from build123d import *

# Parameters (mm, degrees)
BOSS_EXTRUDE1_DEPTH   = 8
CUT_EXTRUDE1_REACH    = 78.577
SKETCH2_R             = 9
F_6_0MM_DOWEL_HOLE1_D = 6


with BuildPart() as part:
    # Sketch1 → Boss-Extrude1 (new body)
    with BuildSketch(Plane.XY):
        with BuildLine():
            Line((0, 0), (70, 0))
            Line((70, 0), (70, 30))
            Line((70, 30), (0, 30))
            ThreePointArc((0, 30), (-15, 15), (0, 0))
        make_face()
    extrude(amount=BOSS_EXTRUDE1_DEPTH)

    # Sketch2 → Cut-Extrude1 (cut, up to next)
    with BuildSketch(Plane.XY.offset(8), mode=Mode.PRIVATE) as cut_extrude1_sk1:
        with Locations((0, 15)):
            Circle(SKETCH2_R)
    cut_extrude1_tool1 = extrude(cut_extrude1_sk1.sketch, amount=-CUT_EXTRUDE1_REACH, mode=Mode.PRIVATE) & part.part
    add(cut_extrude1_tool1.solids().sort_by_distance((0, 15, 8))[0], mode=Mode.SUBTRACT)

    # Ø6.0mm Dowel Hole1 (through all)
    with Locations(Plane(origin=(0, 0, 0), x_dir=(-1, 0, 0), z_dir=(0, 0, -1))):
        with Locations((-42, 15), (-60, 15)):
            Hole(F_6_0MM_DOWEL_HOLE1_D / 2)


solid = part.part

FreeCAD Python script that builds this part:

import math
import FreeCAD as App
import Part
import Sketcher

doc = App.newDocument("Part")
body = doc.addObject("PartDesign::Body", "Body")

sketch1 = body.newObject("Sketcher::SketchObject", "Sketch")
sketch1.AttachmentSupport = (doc.getObject("XY_Plane"), [""])
sketch1.MapMode = "FlatFace"
sketch1.addGeometry(Part.LineSegment(App.Vector(0, 0, 0), App.Vector(70, 0, 0)), False)
sketch1.addGeometry(Part.LineSegment(App.Vector(70, 0, 0), App.Vector(70, 30, 0)), False)
sketch1.addGeometry(Part.LineSegment(App.Vector(70, 30, 0), App.Vector(0, 30, 0)), False)
sketch1.addGeometry(Part.ArcOfCircle(Part.Circle(App.Vector(0, 15, 0), App.Vector(0, 0, 1), 15), math.radians(90), math.radians(270)), False)
sketch1.addConstraint(Sketcher.Constraint("Coincident", 0, 2, 1, 1))
sketch1.addConstraint(Sketcher.Constraint("Coincident", 1, 2, 2, 1))
sketch1.addConstraint(Sketcher.Constraint("Tangent", 2, 2, 3, 1))
sketch1.addConstraint(Sketcher.Constraint("Tangent", 3, 2, 0, 1))
sketch1.addConstraint(Sketcher.Constraint("Horizontal", 0))
sketch1.addConstraint(Sketcher.Constraint("Vertical", 1))
sketch1.addConstraint(Sketcher.Constraint("Horizontal", 2))
sketch1.addConstraint(Sketcher.Constraint("Coincident", 3, 2, -1, 1))
sketch1.addConstraint(Sketcher.Constraint("Radius", 3, 15.0))
sketch1.addConstraint(Sketcher.Constraint("DistanceX", 0, 1, 0, 2, 70.0))
pad1 = body.newObject("PartDesign::Pad", "Pad")
pad1.Profile = sketch1
pad1.Length = 8

sketch2 = body.newObject("Sketcher::SketchObject", "Sketch001")
sketch2.AttachmentSupport = (doc.getObject("XY_Plane"), [""])
sketch2.MapMode = "FlatFace"
sketch2.AttachmentOffset = App.Placement(App.Vector(0, 0, 8), App.Rotation())
sketch2.addGeometry(Part.Circle(App.Vector(0, 15, 0), App.Vector(0, 0, 1), 9), False)
sketch2.addConstraint(Sketcher.Constraint("PointOnObject", 0, 3, -2))
sketch2.addConstraint(Sketcher.Constraint("Diameter", 0, 18.0))
sketch2.addConstraint(Sketcher.Constraint("DistanceY", -1, 1, 0, 3, 15.0))
pocket1 = body.newObject("PartDesign::Pocket", "Pocket")
pocket1.Profile = sketch2
pocket1.Type = "UpToFirst"

sketch3 = body.newObject("Sketcher::SketchObject", "Sketch002")
sketch3.AttachmentSupport = (doc.getObject("XY_Plane"), [""])
sketch3.MapMode = "FlatFace"
sketch3.addGeometry(Part.Circle(App.Vector(42, 15, 0), App.Vector(0, 0, 1), 3), False)
sketch3.addGeometry(Part.Circle(App.Vector(60, 15, 0), App.Vector(0, 0, 1), 3), False)
sketch3.addConstraint(Sketcher.Constraint("Equal", 0, 1))
sketch3.addConstraint(Sketcher.Constraint("Horizontal", 0, 3, 1, 3))
sketch3.addConstraint(Sketcher.Constraint("Diameter", 0, 6.0))
sketch3.addConstraint(Sketcher.Constraint("DistanceX", -1, 1, 0, 3, 42.0))
sketch3.addConstraint(Sketcher.Constraint("DistanceY", -1, 1, 0, 3, 15.0))
sketch3.addConstraint(Sketcher.Constraint("DistanceX", -1, 1, 1, 3, 60.0))
doc.recompute()
hole = body.newObject("PartDesign::Hole", "Hole")
hole.Profile = sketch3
hole.ThreadType = "None"
hole.Diameter = 6
hole.DepthType = "ThroughAll"
hole.Reversed = True

doc.recompute()
